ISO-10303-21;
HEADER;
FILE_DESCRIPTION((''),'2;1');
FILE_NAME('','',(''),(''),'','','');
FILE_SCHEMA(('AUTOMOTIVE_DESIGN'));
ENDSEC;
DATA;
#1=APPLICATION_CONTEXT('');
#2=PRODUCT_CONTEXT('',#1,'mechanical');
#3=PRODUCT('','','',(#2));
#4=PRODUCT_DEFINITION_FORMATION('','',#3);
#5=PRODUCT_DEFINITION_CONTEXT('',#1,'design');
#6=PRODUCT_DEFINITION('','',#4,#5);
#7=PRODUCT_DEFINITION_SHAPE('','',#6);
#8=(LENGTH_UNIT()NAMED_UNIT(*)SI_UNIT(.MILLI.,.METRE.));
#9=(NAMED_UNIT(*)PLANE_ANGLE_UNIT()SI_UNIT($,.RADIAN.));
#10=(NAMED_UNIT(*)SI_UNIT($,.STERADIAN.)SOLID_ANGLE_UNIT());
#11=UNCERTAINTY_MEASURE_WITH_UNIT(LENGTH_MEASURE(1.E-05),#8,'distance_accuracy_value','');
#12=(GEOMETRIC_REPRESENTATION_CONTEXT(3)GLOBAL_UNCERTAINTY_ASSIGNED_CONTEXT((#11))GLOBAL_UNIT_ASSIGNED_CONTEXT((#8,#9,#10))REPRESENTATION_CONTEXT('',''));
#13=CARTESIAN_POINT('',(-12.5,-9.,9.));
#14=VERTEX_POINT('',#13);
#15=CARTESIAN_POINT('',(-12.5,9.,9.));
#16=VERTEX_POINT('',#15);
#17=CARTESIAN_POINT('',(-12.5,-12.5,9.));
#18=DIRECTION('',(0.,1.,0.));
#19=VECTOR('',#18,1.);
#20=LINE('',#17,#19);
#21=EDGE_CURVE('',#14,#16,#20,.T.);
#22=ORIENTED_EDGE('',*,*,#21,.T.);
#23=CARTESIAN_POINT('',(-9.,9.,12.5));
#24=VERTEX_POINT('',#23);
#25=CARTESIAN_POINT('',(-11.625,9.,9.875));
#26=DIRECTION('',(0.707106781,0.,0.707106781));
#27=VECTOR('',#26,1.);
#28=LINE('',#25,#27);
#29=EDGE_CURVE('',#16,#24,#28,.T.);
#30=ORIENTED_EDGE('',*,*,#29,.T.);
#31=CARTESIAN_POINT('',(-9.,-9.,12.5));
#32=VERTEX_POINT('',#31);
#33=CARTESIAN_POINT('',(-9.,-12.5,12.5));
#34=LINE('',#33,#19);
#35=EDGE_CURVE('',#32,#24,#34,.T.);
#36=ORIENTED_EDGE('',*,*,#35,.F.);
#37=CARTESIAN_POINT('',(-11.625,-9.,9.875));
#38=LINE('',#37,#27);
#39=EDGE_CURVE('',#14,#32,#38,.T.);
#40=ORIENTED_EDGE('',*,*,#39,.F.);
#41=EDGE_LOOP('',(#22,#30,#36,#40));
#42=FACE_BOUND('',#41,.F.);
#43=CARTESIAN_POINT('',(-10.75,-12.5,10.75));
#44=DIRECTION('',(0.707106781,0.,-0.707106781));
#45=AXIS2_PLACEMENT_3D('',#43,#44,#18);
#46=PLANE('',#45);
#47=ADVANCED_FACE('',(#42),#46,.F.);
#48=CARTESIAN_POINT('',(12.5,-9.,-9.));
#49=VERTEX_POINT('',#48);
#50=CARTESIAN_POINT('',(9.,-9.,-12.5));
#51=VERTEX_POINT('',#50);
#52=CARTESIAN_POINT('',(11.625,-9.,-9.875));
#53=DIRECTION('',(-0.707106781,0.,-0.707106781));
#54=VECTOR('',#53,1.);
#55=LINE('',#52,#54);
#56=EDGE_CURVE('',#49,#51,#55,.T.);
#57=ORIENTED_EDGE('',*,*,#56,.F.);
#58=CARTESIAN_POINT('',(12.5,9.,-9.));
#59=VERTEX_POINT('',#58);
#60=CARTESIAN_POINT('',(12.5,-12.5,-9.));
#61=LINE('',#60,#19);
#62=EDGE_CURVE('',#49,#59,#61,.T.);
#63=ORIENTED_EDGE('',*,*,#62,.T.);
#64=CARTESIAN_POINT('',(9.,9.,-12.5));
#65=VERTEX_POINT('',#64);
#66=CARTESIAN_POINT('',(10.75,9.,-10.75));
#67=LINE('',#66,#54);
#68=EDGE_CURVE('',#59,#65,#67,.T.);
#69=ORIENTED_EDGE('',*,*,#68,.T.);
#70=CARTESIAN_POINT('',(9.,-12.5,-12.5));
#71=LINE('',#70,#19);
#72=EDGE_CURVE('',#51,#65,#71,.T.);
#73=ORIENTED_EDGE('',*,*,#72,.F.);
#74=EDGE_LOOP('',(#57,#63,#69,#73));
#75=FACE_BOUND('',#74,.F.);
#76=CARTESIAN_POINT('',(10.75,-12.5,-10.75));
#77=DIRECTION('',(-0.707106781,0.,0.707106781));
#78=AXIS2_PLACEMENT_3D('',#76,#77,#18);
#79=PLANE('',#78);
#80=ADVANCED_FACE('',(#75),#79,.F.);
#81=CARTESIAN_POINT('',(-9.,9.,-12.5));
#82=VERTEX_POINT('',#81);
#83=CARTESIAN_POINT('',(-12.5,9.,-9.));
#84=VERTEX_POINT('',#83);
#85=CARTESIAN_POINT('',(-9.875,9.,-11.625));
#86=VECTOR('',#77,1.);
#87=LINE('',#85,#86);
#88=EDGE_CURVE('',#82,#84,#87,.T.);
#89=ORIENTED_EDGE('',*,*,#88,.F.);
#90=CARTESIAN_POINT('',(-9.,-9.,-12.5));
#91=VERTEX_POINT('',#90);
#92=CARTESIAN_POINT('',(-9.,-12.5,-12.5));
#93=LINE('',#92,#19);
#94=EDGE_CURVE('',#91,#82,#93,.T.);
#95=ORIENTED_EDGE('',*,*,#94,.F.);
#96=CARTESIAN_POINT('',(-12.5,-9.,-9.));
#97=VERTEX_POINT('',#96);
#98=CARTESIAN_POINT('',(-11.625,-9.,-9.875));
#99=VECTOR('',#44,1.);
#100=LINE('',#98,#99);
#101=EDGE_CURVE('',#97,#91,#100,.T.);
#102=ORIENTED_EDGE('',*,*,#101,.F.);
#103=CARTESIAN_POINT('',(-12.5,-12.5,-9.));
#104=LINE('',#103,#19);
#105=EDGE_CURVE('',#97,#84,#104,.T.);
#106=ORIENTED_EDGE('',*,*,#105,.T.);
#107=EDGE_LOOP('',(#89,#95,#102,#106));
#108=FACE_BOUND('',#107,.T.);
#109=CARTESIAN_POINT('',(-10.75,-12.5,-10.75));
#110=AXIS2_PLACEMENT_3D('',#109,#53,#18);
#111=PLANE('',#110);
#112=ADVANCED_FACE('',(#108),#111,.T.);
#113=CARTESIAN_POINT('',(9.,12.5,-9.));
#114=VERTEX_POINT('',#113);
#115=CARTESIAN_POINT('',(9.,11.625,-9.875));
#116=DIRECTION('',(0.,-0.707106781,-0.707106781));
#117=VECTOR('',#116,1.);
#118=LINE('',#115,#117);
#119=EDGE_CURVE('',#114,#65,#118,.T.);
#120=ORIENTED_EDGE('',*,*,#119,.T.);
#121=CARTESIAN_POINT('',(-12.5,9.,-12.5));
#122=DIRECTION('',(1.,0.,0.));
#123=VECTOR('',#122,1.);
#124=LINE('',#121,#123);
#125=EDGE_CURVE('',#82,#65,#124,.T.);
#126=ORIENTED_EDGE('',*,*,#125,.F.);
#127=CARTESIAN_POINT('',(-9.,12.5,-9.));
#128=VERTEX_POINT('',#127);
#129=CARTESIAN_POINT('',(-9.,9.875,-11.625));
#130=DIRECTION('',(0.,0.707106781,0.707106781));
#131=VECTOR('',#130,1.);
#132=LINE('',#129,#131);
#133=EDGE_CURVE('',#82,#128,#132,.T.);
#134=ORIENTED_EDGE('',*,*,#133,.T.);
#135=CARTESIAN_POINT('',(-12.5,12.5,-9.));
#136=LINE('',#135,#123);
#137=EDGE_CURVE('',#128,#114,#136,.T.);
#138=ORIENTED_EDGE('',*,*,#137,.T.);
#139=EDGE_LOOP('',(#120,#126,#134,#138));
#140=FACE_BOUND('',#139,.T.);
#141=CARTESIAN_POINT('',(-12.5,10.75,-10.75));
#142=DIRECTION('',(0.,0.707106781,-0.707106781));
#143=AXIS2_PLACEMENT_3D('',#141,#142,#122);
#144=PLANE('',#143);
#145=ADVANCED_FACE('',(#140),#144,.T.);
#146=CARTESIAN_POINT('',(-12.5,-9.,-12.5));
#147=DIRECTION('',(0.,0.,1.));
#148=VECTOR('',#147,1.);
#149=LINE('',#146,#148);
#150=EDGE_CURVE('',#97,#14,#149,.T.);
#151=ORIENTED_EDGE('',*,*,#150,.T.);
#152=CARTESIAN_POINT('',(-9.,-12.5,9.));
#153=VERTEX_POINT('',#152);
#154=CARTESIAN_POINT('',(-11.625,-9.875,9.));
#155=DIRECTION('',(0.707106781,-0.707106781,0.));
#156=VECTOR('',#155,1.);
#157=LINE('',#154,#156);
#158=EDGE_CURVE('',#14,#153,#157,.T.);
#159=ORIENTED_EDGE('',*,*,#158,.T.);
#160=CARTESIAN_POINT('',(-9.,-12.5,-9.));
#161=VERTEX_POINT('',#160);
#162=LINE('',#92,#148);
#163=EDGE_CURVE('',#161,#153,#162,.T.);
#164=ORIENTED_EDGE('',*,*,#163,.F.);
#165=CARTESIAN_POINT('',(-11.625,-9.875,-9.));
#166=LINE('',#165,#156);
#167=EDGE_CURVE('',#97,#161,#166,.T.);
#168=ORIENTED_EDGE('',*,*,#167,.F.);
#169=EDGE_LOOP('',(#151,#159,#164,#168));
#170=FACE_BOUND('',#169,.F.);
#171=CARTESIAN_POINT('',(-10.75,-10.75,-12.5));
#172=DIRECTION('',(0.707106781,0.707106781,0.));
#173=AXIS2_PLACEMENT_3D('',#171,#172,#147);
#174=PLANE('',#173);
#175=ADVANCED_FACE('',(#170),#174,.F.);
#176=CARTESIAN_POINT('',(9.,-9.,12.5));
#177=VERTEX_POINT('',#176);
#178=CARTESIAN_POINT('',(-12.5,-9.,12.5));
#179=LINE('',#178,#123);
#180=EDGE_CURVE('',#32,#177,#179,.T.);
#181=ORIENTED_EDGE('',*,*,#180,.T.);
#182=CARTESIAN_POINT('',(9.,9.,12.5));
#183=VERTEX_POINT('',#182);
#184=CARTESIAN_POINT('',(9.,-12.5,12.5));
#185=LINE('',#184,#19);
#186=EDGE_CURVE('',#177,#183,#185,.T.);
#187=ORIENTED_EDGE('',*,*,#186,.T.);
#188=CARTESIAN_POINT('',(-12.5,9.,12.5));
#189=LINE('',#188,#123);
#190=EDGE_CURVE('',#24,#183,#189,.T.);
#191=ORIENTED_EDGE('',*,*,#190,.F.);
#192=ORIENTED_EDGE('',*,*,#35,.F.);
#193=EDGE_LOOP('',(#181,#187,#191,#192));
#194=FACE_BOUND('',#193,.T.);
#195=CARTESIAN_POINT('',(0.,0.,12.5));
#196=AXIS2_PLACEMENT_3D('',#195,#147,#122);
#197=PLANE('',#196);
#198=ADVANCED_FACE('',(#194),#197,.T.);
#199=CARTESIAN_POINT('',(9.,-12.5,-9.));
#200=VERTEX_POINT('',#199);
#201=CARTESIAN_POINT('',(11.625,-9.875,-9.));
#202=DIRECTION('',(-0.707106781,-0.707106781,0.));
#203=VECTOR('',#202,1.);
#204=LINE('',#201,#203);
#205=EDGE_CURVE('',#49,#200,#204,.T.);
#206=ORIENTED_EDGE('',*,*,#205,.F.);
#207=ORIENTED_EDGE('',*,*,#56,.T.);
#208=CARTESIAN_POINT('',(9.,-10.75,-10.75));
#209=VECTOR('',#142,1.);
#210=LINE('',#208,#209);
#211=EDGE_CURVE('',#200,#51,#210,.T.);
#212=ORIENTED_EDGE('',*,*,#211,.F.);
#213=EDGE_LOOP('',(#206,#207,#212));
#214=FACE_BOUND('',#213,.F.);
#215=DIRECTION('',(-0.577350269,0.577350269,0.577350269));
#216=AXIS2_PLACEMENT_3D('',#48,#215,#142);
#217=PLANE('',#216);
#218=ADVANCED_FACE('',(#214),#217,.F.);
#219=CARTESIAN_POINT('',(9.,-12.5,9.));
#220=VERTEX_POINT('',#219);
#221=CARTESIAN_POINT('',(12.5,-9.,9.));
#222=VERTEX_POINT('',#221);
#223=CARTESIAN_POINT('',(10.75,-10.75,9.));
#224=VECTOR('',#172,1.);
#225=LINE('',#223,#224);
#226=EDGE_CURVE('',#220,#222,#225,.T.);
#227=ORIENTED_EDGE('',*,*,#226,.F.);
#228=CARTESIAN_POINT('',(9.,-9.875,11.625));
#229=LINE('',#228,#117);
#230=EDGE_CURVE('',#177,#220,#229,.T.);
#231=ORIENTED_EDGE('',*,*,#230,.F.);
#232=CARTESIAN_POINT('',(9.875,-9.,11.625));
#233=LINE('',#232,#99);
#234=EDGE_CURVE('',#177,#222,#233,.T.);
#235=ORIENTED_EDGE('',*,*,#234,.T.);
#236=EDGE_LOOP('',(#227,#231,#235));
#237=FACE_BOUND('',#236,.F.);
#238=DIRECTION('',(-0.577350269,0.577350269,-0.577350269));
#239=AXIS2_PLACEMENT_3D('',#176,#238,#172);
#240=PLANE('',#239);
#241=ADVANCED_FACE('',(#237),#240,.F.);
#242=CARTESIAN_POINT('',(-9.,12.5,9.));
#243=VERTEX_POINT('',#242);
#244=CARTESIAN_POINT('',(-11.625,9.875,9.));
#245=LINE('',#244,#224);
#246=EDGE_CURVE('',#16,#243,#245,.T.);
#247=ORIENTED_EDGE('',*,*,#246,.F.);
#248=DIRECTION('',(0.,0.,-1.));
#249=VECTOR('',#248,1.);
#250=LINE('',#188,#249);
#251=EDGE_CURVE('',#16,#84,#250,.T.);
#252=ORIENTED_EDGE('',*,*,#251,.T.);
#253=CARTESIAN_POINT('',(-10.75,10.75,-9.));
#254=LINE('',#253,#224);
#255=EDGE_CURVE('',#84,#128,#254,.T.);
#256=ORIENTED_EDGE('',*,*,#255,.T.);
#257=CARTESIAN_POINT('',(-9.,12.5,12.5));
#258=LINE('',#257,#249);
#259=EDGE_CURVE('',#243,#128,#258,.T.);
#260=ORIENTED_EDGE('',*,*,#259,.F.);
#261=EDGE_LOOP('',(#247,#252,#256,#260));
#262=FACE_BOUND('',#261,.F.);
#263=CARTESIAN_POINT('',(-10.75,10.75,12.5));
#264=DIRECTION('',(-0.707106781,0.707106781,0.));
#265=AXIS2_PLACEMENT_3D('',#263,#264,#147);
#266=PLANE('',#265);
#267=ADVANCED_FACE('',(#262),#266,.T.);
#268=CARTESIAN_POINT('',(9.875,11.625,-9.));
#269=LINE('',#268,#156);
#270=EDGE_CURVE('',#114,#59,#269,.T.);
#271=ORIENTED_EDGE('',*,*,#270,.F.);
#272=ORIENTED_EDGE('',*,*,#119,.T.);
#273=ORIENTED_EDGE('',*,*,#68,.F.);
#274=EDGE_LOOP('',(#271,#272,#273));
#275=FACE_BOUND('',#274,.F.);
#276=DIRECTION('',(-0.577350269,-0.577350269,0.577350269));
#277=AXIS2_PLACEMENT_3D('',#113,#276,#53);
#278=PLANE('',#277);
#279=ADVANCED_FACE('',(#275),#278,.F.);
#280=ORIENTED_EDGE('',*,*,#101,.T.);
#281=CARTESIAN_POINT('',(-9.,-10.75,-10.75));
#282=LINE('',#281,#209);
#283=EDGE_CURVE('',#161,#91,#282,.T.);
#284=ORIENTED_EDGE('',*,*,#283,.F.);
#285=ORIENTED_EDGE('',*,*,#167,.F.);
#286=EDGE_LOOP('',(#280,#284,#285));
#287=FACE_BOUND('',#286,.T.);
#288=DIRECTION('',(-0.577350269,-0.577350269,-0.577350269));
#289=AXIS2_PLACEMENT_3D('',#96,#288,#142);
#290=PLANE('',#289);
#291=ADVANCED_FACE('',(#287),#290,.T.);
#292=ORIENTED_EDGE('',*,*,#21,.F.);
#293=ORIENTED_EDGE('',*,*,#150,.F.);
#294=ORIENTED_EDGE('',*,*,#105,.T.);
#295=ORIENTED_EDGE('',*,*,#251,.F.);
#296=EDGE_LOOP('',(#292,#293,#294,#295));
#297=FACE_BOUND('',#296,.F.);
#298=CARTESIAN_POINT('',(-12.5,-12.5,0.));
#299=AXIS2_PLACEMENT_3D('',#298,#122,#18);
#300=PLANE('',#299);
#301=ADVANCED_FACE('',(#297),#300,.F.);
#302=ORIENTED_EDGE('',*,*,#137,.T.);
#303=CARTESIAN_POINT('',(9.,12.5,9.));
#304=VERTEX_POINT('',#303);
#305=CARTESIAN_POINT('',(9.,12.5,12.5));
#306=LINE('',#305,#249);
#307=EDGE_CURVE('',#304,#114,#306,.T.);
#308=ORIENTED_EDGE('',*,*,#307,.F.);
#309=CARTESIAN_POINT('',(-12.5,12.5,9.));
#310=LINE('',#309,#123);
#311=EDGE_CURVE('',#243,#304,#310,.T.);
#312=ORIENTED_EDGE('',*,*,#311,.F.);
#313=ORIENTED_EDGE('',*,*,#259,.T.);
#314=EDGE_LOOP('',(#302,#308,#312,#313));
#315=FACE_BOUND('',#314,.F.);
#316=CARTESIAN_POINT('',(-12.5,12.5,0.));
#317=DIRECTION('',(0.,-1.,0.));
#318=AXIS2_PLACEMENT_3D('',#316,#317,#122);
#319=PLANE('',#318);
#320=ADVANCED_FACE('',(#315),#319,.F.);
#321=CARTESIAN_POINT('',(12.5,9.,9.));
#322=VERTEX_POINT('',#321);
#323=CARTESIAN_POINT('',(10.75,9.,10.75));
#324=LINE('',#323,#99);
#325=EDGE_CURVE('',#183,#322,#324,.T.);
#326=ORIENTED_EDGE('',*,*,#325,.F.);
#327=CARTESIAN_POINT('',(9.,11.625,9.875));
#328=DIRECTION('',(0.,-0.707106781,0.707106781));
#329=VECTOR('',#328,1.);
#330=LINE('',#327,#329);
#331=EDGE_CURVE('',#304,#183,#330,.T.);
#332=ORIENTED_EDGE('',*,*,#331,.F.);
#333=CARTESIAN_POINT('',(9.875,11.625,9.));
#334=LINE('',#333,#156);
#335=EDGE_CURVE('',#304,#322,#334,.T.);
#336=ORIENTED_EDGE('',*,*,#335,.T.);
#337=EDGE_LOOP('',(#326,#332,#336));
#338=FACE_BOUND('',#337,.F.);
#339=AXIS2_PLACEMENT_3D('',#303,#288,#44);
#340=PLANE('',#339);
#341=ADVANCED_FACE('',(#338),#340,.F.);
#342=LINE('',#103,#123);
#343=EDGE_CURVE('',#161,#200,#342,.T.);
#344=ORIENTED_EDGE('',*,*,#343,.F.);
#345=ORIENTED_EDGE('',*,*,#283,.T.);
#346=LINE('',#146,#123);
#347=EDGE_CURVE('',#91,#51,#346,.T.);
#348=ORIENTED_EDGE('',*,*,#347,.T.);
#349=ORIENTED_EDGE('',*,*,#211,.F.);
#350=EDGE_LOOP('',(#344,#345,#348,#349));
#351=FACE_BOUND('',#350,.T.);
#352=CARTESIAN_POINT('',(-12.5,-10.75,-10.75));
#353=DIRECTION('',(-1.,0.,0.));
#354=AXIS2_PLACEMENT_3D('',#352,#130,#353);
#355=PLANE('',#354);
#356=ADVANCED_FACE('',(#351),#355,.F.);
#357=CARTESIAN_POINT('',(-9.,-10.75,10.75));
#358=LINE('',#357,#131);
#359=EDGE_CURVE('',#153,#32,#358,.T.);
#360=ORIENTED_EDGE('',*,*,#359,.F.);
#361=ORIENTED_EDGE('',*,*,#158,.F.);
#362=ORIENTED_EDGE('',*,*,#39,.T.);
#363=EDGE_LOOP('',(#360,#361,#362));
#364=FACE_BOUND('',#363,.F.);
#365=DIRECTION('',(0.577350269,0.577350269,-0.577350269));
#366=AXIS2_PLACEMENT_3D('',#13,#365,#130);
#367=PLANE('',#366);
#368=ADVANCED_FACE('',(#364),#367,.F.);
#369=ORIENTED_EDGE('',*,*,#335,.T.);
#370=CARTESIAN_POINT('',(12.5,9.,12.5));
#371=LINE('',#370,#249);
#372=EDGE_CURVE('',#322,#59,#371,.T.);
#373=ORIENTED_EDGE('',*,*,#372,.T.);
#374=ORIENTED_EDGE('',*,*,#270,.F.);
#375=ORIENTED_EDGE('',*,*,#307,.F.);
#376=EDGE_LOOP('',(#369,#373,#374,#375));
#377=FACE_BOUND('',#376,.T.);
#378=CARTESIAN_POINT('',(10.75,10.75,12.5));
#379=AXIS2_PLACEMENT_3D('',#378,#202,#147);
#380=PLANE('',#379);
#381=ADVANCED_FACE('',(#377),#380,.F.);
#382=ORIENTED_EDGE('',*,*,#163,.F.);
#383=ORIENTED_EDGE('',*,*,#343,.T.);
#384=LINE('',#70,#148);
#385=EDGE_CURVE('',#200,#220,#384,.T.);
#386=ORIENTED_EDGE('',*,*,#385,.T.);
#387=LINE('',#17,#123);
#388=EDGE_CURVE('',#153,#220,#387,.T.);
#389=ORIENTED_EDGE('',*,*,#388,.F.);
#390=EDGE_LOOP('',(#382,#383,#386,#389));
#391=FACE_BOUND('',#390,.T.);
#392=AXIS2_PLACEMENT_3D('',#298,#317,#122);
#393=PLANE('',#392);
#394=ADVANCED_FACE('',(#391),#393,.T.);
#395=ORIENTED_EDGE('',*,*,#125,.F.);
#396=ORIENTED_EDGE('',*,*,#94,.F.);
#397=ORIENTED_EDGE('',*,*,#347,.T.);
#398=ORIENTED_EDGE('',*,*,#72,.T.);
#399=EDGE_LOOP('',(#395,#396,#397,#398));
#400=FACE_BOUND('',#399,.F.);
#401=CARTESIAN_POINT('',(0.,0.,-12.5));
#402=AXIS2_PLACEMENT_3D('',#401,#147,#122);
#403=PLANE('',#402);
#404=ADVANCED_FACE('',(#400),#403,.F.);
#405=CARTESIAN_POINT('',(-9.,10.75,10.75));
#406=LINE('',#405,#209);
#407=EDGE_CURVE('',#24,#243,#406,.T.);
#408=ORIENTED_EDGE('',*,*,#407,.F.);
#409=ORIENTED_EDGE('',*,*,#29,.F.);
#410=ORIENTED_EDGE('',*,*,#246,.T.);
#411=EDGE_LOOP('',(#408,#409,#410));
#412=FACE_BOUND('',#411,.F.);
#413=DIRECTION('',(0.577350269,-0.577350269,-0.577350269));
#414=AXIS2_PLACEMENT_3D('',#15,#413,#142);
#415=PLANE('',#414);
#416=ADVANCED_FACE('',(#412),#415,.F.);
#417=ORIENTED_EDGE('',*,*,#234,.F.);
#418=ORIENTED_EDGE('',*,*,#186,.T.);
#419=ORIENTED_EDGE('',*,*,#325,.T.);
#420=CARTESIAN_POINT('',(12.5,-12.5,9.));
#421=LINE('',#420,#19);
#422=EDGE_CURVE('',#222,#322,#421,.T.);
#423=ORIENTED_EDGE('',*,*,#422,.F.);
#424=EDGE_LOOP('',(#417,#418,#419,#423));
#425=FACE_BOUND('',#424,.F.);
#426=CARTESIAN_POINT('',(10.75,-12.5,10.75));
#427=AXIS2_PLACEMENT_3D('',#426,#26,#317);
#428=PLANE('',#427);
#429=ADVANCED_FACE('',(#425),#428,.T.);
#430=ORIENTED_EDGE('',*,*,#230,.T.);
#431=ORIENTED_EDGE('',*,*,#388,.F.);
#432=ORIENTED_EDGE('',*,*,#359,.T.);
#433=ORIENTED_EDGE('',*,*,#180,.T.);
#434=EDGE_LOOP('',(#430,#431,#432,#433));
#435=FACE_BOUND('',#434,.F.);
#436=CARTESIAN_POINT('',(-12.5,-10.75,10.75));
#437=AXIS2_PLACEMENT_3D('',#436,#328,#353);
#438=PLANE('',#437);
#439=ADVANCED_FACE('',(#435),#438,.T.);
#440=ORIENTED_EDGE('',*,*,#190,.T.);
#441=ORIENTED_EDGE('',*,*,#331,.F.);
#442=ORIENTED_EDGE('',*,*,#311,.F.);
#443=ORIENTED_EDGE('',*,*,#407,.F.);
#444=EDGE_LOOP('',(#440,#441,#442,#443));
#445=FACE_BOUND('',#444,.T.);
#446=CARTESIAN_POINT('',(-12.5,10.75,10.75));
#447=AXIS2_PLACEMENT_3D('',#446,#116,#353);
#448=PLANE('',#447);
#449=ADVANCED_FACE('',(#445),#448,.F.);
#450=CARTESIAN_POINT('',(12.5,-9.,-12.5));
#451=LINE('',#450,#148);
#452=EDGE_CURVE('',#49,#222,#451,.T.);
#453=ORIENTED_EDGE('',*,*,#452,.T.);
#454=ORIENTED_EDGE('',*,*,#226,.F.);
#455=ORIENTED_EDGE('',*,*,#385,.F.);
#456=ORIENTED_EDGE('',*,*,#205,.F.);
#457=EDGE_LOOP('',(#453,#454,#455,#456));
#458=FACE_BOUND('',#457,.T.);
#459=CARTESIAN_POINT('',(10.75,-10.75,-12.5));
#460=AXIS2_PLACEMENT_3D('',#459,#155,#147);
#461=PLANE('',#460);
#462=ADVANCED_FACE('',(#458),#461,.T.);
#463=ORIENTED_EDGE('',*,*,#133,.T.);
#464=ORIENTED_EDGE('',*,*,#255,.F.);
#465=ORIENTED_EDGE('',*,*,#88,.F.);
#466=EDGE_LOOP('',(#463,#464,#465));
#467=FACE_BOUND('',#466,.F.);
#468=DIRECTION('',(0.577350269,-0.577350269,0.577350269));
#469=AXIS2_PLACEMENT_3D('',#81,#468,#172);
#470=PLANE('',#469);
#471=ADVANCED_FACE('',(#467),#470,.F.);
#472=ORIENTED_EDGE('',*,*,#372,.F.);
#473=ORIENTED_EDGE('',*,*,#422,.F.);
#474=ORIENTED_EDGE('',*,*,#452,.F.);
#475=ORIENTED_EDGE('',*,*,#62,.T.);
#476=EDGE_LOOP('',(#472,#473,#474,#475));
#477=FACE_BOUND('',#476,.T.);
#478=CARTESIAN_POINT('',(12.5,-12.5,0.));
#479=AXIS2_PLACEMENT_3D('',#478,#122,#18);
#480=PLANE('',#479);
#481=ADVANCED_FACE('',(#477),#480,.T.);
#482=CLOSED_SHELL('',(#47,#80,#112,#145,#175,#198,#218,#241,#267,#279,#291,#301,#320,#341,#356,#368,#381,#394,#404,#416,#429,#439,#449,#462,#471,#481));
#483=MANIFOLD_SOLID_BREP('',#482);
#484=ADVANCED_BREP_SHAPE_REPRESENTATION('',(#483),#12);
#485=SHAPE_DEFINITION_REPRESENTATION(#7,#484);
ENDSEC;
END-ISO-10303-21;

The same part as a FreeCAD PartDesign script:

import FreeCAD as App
import Part
import Sketcher
from FreeCAD import Vector
Q = App.Units.Quantity

doc = App.newDocument("Part")
params = doc.addObject("Spreadsheet::Sheet", "Params")
for row, (alias, value) in enumerate([
    ("sketch1_width", "25 mm"),
    ("pad1_length", "25 mm"),
    ("chamfer_size", "3.5 mm"),
], start=1):
    params.set(f"A{row}", alias)
    params.set(f"B{row}", "=" + value)
    params.setAlias(f"B{row}", alias)

body = doc.addObject("PartDesign::Body", "Body")

sketch1 = body.newObject("Sketcher::SketchObject", "Sketch")
sketch1.AttachmentSupport = (doc.getObject("XY_Plane"), [""])
sketch1.MapMode = "FlatFace"
sketch1.addGeometry([
    Part.LineSegment(Vector(-12, 12, 0), Vector(-12, -12, 0)),
    Part.LineSegment(Vector(-12, -12, 0), Vector(12, -12, 0)),
    Part.LineSegment(Vector(12, -12, 0), Vector(12, 12, 0)),
    Part.LineSegment(Vector(12, 12, 0), Vector(-12, 12, 0)),
], False)
sketch1.addConstraint([
    Sketcher.Constraint("Coincident", 0, 2, 1, 1),
    Sketcher.Constraint("Coincident", 1, 2, 2, 1),
    Sketcher.Constraint("Coincident", 2, 2, 3, 1),
    Sketcher.Constraint("Coincident", 3, 2, 0, 1),
    Sketcher.Constraint("Vertical", 0),
    Sketcher.Constraint("Horizontal", 1),
    Sketcher.Constraint("Vertical", 2),
    Sketcher.Constraint("Horizontal", 3),
    Sketcher.Constraint("Symmetric", 0, 2, 2, 2, -1, 1),
    Sketcher.Constraint("Equal", 3, 0),
    Sketcher.Constraint("DistanceX", 1, 1, 1, 2, Q("25 mm")),
])
sketch1.setExpression("Constraints[10]", "Params.sketch1_width")
pad1 = body.newObject("PartDesign::Pad", "Pad")
pad1.Profile = sketch1
pad1.setExpression("Length", "Params.pad1_length")
pad1.Midplane = True
doc.recompute()

chamfer = body.newObject("PartDesign::Chamfer", "Chamfer")
chamfer.Base = (pad1, ["Edge1"])
chamfer.UseAllEdges = True
chamfer.setExpression("Size", "Params.chamfer_size")

doc.recompute()
